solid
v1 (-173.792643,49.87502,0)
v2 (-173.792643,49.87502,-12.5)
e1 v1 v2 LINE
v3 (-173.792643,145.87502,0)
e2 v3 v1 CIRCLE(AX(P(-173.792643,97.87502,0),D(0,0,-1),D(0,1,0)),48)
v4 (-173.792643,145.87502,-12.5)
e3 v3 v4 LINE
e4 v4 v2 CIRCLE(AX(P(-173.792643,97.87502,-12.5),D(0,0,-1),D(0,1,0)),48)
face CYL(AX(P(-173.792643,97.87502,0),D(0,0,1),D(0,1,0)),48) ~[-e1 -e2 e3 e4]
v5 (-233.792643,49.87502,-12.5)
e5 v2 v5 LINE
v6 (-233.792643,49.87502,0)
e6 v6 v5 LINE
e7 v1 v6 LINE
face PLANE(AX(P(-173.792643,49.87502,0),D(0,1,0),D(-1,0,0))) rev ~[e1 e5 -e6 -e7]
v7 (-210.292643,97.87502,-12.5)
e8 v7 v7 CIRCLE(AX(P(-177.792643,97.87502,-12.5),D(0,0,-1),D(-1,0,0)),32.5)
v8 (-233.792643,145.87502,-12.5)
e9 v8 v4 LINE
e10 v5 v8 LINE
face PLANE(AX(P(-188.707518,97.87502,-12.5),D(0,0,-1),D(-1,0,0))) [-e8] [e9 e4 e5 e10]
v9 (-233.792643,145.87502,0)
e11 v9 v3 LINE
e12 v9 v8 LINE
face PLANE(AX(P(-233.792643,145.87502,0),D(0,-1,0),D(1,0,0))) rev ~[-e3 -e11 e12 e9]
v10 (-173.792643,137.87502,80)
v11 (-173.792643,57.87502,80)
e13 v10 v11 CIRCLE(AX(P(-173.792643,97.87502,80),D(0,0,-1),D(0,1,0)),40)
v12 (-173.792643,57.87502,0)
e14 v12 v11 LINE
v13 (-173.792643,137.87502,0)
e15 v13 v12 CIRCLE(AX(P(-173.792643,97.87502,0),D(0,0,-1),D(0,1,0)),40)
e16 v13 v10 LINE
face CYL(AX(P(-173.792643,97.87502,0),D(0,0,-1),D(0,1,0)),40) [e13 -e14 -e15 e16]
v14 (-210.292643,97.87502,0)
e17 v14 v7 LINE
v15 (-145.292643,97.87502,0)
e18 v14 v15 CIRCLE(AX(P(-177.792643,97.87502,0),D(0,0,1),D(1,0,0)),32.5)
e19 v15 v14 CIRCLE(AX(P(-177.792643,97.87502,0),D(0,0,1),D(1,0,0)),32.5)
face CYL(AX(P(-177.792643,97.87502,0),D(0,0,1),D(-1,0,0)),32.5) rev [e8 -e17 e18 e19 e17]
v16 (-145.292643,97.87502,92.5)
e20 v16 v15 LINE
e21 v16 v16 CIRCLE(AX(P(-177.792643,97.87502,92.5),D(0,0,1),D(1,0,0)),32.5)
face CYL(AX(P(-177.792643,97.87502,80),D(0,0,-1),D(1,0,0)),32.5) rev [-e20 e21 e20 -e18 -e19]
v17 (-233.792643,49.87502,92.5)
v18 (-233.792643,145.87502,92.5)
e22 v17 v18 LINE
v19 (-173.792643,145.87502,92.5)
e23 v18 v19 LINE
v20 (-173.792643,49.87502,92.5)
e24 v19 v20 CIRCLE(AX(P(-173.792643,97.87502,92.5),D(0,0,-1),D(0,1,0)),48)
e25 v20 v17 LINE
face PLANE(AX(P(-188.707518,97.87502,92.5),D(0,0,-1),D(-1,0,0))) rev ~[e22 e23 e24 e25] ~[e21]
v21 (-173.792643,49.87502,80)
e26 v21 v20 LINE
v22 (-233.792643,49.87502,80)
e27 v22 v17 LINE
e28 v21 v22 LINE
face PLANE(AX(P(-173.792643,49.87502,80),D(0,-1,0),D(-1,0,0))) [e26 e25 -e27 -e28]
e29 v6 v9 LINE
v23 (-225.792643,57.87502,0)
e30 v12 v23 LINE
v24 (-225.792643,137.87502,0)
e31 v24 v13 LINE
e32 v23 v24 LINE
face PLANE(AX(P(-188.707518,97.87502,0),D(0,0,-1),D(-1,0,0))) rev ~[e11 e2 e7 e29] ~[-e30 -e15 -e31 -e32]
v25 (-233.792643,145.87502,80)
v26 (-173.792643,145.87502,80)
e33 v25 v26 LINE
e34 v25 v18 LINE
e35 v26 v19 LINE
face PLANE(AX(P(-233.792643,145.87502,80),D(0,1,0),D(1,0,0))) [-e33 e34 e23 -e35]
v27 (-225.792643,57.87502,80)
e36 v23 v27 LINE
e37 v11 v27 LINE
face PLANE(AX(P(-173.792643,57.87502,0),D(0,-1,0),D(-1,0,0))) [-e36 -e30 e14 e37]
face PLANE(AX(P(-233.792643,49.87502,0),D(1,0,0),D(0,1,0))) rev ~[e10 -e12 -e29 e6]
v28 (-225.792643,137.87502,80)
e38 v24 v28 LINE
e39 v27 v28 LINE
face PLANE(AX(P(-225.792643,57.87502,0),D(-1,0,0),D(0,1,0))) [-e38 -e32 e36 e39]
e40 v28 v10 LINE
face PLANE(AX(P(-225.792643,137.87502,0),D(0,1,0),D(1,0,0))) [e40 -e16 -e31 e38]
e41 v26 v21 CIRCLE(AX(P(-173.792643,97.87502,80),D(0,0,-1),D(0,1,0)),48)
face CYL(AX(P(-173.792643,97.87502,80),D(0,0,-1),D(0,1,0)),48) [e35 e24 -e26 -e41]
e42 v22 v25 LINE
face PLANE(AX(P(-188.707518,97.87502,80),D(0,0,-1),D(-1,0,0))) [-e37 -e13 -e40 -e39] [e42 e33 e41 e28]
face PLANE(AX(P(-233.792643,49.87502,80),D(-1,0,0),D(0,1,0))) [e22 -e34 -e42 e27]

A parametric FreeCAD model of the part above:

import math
import FreeCAD as App
import Part
import Sketcher

V = App.Vector
Q = App.Units.Quantity

doc = App.newDocument("Part")
body = doc.addObject("PartDesign::Body", "Body")

# Sketch on XY plane
sketch1 = body.newObject("Sketcher::SketchObject", "Sketch")
sketch1.AttachmentSupport = (doc.getObject("XY_Plane"), [""])
sketch1.MapMode = "FlatFace"
sketch1.addGeometry(Part.LineSegment(V(-174, 138, 0), V(-226, 138, 0)), False)
sketch1.addGeometry(Part.LineSegment(V(-226, 138, 0), V(-226, 58, 0)), False)
sketch1.addGeometry(Part.LineSegment(V(-226, 58, 0), V(-174, 58, 0)), False)
sketch1.addGeometry(Part.ArcOfCircle(Part.Circle(V(-174, 98, 0), V(0, 0, 1), 40), math.radians(-90), math.radians(90)), False)
sketch1.addGeometry(Part.Circle(V(-178, 98, 0), V(0, 0, 1), 32), False)
sketch1.addConstraint(Sketcher.Constraint("Coincident", 0, 2, 1, 1))
sketch1.addConstraint(Sketcher.Constraint("Coincident", 1, 2, 2, 1))
sketch1.addConstraint(Sketcher.Constraint("Tangent", 2, 2, 3, 1))
sketch1.addConstraint(Sketcher.Constraint("Tangent", 3, 2, 0, 1))
sketch1.addConstraint(Sketcher.Constraint("Horizontal", 0))
sketch1.addConstraint(Sketcher.Constraint("Vertical", 1))
sketch1.addConstraint(Sketcher.Constraint("Horizontal", 2))
sketch1.addConstraint(Sketcher.Constraint("Horizontal", 3, 3, 4, 3))
sketch1.addConstraint(Sketcher.Constraint("Diameter", 4, Q("65 mm")))
sketch1.addConstraint(Sketcher.Constraint("Radius", 3, Q("40 mm")))
sketch1.addConstraint(Sketcher.Constraint("DistanceX", 0, 2, 0, 1, Q("52 mm")))
sketch1.addConstraint(Sketcher.Constraint("DistanceX", 4, 3, 3, 3, Q("4 mm")))
sketch1.addConstraint(Sketcher.Constraint("DistanceY", -1, 1, 3, 3, Q("97.87502 mm")))
sketch1.addConstraint(Sketcher.Constraint("DistanceX", 3, 3, -1, 1, Q("173.792643 mm")))
pad1 = body.newObject("PartDesign::Pad", "Pad")
pad1.Profile = sketch1
pad1.Length = 80

# Sketch on XY plane
sketch2 = body.newObject("Sketcher::SketchObject", "Sketch001")
sketch2.AttachmentSupport = (doc.getObject("XY_Plane"), [""])
sketch2.MapMode = "FlatFace"
sketch2.AttachmentOffset = App.Placement(V(0, 0, 80), App.Rotation())
sketch2.addGeometry(Part.LineSegment(V(-234, 50, 0), V(-174, 50, 0)), False)
sketch2.addGeometry(Part.ArcOfCircle(Part.Circle(V(-174, 98, 0), V(0, 0, 1), 48), math.radians(-90), math.radians(90)), False)
sketch2.addGeometry(Part.LineSegment(V(-174, 146, 0), V(-234, 146, 0)), False)
sketch2.addGeometry(Part.LineSegment(V(-234, 146, 0), V(-234, 50, 0)), False)
sketch2.addGeometry(Part.Circle(V(-178, 98, 0), V(0, 0, 1), 32), False)
sketch2.addConstraint(Sketcher.Constraint("Tangent", 0, 2, 1, 1))
sketch2.addConstraint(Sketcher.Constraint("Tangent", 1, 2, 2, 1))
sketch2.addConstraint(Sketcher.Constraint("Coincident", 2, 2, 3, 1))
sketch2.addConstraint(Sketcher.Constraint("Coincident", 3, 2, 0, 1))
sketch2.addConstraint(Sketcher.Constraint("Horizontal", 0))
sketch2.addConstraint(Sketcher.Constraint("Horizontal", 2))
sketch2.addConstraint(Sketcher.Constraint("Vertical", 3))
sketch2.addConstraint(Sketcher.Constraint("Horizontal", 1, 3, 4, 3))
sketch2.addConstraint(Sketcher.Constraint("Diameter", 4, Q("65 mm")))
sketch2.addConstraint(Sketcher.Constraint("Radius", 1, Q("48 mm")))
sketch2.addConstraint(Sketcher.Constraint("DistanceX", 0, 1, 0, 2, Q("60 mm")))
sketch2.addConstraint(Sketcher.Constraint("DistanceX", 4, 3, 1, 3, Q("4 mm")))
sketch2.addConstraint(Sketcher.Constraint("DistanceY", -1, 1, 1, 3, Q("97.87502 mm")))
sketch2.addConstraint(Sketcher.Constraint("DistanceX", 1, 3, -1, 1, Q("173.792643 mm")))
pad2 = body.newObject("PartDesign::Pad", "Pad001")
pad2.Profile = sketch2
pad2.Length = 12.5

# Sketch on XY plane
sketch3 = body.newObject("Sketcher::SketchObject", "Sketch002")
sketch3.AttachmentSupport = (doc.getObject("XY_Plane"), [""])
sketch3.MapMode = "FlatFace"
sketch3.addGeometry(Part.LineSegment(V(-234, 146, 0), V(-174, 146, 0)), False)
sketch3.addGeometry(Part.ArcOfCircle(Part.Circle(V(-174, 98, 0), V(0, 0, 1), 48), math.radians(-90), math.radians(90)), False)
sketch3.addGeometry(Part.LineSegment(V(-174, 50, 0), V(-234, 50, 0)), False)
sketch3.addGeometry(Part.LineSegment(V(-234, 50, 0), V(-234, 146, 0)), False)
sketch3.addGeometry(Part.Circle(V(-178, 98, 0), V(0, 0, 1), 32), False)
sketch3.addConstraint(Sketcher.Constraint("Tangent", 0, 2, 1, 2))
sketch3.addConstraint(Sketcher.Constraint("Tangent", 1, 1, 2, 1))
sketch3.addConstraint(Sketcher.Constraint("Coincident", 2, 2, 3, 1))
sketch3.addConstraint(Sketcher.Constraint("Coincident", 3, 2, 0, 1))
sketch3.addConstraint(Sketcher.Constraint("Horizontal", 0))
sketch3.addConstraint(Sketcher.Constraint("Horizontal", 2))
sketch3.addConstraint(Sketcher.Constraint("Vertical", 3))
sketch3.addConstraint(Sketcher.Constraint("Horizontal", 1, 3, 4, 3))
sketch3.addConstraint(Sketcher.Constraint("Diameter", 4, Q("65 mm")))
sketch3.addConstraint(Sketcher.Constraint("Radius", 1, Q("48 mm")))
sketch3.addConstraint(Sketcher.Constraint("DistanceX", 0, 1, 0, 2, Q("60 mm")))
sketch3.addConstraint(Sketcher.Constraint("DistanceX", 4, 3, 1, 3, Q("4 mm")))
sketch3.addConstraint(Sketcher.Constraint("DistanceY", -1, 1, 1, 3, Q("97.87502 mm")))
sketch3.addConstraint(Sketcher.Constraint("DistanceX", 1, 3, -1, 1, Q("173.792643 mm")))
pad3 = body.newObject("PartDesign::Pad", "Pad002")
pad3.Profile = sketch3
pad3.Length = 12.5
pad3.Reversed = True

doc.recompute()
